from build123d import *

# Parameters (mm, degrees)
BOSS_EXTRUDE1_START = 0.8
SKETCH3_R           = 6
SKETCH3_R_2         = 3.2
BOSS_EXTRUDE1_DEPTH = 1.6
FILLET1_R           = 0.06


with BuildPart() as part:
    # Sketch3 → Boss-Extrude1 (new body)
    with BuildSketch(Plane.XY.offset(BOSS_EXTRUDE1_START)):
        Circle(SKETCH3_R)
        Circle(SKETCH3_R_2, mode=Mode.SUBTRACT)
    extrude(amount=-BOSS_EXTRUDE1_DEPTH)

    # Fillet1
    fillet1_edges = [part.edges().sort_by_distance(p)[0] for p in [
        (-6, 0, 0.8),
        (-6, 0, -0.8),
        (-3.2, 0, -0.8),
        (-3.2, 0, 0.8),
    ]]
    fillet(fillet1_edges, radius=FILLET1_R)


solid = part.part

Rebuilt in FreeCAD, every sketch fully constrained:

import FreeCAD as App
import Part
import Sketcher
from FreeCAD import Vector


def edges_at(feature, points):
    """Names of the edges that pass closest to the given points."""
    edges = feature.Shape.Edges
    near = lambda p: min(range(len(edges)), key=lambda i: edges[i].distToShape(Part.Vertex(*p))[0])
    return sorted({f"Edge{near(p) + 1}" for p in points})

doc = App.newDocument("Part")
body = doc.addObject("PartDesign::Body", "Body")

sketch1 = body.newObject("Sketcher::SketchObject", "Sketch")
sketch1.AttachmentSupport = (doc.getObject("XY_Plane"), [""])
sketch1.MapMode = "FlatFace"
sketch1.AttachmentOffset = App.Placement(Vector(0, 0, 0.8), App.Rotation())
sketch1.addGeometry([
    Part.Circle(Vector(0, 0, 0), Vector(0, 0, 1), 6),
    Part.Circle(Vector(0, 0, 0), Vector(0, 0, 1), 3.2),
], False)
sketch1.addConstraint([
    Sketcher.Constraint("Coincident", 0, 3, -1, 1),
    Sketcher.Constraint("Coincident", 1, 3, -1, 1),
    Sketcher.Constraint("Diameter", 0, 12.0),
    Sketcher.Constraint("Diameter", 1, 6.4),
])
pad1 = body.newObject("PartDesign::Pad", "Pad")
pad1.Profile = sketch1
pad1.Length = 1.6
pad1.Reversed = True
doc.recompute()

fillet = body.newObject("PartDesign::Fillet", "Fillet")
fillet.Base = (pad1, edges_at(pad1, [
    (-6, 0, 0.8),
    (-6, 0, -0.8),
    (-3.2, 0, -0.8),
    (-3.2, 0, 0.8),
]))
fillet.Radius = 0.06

doc.recompute()
